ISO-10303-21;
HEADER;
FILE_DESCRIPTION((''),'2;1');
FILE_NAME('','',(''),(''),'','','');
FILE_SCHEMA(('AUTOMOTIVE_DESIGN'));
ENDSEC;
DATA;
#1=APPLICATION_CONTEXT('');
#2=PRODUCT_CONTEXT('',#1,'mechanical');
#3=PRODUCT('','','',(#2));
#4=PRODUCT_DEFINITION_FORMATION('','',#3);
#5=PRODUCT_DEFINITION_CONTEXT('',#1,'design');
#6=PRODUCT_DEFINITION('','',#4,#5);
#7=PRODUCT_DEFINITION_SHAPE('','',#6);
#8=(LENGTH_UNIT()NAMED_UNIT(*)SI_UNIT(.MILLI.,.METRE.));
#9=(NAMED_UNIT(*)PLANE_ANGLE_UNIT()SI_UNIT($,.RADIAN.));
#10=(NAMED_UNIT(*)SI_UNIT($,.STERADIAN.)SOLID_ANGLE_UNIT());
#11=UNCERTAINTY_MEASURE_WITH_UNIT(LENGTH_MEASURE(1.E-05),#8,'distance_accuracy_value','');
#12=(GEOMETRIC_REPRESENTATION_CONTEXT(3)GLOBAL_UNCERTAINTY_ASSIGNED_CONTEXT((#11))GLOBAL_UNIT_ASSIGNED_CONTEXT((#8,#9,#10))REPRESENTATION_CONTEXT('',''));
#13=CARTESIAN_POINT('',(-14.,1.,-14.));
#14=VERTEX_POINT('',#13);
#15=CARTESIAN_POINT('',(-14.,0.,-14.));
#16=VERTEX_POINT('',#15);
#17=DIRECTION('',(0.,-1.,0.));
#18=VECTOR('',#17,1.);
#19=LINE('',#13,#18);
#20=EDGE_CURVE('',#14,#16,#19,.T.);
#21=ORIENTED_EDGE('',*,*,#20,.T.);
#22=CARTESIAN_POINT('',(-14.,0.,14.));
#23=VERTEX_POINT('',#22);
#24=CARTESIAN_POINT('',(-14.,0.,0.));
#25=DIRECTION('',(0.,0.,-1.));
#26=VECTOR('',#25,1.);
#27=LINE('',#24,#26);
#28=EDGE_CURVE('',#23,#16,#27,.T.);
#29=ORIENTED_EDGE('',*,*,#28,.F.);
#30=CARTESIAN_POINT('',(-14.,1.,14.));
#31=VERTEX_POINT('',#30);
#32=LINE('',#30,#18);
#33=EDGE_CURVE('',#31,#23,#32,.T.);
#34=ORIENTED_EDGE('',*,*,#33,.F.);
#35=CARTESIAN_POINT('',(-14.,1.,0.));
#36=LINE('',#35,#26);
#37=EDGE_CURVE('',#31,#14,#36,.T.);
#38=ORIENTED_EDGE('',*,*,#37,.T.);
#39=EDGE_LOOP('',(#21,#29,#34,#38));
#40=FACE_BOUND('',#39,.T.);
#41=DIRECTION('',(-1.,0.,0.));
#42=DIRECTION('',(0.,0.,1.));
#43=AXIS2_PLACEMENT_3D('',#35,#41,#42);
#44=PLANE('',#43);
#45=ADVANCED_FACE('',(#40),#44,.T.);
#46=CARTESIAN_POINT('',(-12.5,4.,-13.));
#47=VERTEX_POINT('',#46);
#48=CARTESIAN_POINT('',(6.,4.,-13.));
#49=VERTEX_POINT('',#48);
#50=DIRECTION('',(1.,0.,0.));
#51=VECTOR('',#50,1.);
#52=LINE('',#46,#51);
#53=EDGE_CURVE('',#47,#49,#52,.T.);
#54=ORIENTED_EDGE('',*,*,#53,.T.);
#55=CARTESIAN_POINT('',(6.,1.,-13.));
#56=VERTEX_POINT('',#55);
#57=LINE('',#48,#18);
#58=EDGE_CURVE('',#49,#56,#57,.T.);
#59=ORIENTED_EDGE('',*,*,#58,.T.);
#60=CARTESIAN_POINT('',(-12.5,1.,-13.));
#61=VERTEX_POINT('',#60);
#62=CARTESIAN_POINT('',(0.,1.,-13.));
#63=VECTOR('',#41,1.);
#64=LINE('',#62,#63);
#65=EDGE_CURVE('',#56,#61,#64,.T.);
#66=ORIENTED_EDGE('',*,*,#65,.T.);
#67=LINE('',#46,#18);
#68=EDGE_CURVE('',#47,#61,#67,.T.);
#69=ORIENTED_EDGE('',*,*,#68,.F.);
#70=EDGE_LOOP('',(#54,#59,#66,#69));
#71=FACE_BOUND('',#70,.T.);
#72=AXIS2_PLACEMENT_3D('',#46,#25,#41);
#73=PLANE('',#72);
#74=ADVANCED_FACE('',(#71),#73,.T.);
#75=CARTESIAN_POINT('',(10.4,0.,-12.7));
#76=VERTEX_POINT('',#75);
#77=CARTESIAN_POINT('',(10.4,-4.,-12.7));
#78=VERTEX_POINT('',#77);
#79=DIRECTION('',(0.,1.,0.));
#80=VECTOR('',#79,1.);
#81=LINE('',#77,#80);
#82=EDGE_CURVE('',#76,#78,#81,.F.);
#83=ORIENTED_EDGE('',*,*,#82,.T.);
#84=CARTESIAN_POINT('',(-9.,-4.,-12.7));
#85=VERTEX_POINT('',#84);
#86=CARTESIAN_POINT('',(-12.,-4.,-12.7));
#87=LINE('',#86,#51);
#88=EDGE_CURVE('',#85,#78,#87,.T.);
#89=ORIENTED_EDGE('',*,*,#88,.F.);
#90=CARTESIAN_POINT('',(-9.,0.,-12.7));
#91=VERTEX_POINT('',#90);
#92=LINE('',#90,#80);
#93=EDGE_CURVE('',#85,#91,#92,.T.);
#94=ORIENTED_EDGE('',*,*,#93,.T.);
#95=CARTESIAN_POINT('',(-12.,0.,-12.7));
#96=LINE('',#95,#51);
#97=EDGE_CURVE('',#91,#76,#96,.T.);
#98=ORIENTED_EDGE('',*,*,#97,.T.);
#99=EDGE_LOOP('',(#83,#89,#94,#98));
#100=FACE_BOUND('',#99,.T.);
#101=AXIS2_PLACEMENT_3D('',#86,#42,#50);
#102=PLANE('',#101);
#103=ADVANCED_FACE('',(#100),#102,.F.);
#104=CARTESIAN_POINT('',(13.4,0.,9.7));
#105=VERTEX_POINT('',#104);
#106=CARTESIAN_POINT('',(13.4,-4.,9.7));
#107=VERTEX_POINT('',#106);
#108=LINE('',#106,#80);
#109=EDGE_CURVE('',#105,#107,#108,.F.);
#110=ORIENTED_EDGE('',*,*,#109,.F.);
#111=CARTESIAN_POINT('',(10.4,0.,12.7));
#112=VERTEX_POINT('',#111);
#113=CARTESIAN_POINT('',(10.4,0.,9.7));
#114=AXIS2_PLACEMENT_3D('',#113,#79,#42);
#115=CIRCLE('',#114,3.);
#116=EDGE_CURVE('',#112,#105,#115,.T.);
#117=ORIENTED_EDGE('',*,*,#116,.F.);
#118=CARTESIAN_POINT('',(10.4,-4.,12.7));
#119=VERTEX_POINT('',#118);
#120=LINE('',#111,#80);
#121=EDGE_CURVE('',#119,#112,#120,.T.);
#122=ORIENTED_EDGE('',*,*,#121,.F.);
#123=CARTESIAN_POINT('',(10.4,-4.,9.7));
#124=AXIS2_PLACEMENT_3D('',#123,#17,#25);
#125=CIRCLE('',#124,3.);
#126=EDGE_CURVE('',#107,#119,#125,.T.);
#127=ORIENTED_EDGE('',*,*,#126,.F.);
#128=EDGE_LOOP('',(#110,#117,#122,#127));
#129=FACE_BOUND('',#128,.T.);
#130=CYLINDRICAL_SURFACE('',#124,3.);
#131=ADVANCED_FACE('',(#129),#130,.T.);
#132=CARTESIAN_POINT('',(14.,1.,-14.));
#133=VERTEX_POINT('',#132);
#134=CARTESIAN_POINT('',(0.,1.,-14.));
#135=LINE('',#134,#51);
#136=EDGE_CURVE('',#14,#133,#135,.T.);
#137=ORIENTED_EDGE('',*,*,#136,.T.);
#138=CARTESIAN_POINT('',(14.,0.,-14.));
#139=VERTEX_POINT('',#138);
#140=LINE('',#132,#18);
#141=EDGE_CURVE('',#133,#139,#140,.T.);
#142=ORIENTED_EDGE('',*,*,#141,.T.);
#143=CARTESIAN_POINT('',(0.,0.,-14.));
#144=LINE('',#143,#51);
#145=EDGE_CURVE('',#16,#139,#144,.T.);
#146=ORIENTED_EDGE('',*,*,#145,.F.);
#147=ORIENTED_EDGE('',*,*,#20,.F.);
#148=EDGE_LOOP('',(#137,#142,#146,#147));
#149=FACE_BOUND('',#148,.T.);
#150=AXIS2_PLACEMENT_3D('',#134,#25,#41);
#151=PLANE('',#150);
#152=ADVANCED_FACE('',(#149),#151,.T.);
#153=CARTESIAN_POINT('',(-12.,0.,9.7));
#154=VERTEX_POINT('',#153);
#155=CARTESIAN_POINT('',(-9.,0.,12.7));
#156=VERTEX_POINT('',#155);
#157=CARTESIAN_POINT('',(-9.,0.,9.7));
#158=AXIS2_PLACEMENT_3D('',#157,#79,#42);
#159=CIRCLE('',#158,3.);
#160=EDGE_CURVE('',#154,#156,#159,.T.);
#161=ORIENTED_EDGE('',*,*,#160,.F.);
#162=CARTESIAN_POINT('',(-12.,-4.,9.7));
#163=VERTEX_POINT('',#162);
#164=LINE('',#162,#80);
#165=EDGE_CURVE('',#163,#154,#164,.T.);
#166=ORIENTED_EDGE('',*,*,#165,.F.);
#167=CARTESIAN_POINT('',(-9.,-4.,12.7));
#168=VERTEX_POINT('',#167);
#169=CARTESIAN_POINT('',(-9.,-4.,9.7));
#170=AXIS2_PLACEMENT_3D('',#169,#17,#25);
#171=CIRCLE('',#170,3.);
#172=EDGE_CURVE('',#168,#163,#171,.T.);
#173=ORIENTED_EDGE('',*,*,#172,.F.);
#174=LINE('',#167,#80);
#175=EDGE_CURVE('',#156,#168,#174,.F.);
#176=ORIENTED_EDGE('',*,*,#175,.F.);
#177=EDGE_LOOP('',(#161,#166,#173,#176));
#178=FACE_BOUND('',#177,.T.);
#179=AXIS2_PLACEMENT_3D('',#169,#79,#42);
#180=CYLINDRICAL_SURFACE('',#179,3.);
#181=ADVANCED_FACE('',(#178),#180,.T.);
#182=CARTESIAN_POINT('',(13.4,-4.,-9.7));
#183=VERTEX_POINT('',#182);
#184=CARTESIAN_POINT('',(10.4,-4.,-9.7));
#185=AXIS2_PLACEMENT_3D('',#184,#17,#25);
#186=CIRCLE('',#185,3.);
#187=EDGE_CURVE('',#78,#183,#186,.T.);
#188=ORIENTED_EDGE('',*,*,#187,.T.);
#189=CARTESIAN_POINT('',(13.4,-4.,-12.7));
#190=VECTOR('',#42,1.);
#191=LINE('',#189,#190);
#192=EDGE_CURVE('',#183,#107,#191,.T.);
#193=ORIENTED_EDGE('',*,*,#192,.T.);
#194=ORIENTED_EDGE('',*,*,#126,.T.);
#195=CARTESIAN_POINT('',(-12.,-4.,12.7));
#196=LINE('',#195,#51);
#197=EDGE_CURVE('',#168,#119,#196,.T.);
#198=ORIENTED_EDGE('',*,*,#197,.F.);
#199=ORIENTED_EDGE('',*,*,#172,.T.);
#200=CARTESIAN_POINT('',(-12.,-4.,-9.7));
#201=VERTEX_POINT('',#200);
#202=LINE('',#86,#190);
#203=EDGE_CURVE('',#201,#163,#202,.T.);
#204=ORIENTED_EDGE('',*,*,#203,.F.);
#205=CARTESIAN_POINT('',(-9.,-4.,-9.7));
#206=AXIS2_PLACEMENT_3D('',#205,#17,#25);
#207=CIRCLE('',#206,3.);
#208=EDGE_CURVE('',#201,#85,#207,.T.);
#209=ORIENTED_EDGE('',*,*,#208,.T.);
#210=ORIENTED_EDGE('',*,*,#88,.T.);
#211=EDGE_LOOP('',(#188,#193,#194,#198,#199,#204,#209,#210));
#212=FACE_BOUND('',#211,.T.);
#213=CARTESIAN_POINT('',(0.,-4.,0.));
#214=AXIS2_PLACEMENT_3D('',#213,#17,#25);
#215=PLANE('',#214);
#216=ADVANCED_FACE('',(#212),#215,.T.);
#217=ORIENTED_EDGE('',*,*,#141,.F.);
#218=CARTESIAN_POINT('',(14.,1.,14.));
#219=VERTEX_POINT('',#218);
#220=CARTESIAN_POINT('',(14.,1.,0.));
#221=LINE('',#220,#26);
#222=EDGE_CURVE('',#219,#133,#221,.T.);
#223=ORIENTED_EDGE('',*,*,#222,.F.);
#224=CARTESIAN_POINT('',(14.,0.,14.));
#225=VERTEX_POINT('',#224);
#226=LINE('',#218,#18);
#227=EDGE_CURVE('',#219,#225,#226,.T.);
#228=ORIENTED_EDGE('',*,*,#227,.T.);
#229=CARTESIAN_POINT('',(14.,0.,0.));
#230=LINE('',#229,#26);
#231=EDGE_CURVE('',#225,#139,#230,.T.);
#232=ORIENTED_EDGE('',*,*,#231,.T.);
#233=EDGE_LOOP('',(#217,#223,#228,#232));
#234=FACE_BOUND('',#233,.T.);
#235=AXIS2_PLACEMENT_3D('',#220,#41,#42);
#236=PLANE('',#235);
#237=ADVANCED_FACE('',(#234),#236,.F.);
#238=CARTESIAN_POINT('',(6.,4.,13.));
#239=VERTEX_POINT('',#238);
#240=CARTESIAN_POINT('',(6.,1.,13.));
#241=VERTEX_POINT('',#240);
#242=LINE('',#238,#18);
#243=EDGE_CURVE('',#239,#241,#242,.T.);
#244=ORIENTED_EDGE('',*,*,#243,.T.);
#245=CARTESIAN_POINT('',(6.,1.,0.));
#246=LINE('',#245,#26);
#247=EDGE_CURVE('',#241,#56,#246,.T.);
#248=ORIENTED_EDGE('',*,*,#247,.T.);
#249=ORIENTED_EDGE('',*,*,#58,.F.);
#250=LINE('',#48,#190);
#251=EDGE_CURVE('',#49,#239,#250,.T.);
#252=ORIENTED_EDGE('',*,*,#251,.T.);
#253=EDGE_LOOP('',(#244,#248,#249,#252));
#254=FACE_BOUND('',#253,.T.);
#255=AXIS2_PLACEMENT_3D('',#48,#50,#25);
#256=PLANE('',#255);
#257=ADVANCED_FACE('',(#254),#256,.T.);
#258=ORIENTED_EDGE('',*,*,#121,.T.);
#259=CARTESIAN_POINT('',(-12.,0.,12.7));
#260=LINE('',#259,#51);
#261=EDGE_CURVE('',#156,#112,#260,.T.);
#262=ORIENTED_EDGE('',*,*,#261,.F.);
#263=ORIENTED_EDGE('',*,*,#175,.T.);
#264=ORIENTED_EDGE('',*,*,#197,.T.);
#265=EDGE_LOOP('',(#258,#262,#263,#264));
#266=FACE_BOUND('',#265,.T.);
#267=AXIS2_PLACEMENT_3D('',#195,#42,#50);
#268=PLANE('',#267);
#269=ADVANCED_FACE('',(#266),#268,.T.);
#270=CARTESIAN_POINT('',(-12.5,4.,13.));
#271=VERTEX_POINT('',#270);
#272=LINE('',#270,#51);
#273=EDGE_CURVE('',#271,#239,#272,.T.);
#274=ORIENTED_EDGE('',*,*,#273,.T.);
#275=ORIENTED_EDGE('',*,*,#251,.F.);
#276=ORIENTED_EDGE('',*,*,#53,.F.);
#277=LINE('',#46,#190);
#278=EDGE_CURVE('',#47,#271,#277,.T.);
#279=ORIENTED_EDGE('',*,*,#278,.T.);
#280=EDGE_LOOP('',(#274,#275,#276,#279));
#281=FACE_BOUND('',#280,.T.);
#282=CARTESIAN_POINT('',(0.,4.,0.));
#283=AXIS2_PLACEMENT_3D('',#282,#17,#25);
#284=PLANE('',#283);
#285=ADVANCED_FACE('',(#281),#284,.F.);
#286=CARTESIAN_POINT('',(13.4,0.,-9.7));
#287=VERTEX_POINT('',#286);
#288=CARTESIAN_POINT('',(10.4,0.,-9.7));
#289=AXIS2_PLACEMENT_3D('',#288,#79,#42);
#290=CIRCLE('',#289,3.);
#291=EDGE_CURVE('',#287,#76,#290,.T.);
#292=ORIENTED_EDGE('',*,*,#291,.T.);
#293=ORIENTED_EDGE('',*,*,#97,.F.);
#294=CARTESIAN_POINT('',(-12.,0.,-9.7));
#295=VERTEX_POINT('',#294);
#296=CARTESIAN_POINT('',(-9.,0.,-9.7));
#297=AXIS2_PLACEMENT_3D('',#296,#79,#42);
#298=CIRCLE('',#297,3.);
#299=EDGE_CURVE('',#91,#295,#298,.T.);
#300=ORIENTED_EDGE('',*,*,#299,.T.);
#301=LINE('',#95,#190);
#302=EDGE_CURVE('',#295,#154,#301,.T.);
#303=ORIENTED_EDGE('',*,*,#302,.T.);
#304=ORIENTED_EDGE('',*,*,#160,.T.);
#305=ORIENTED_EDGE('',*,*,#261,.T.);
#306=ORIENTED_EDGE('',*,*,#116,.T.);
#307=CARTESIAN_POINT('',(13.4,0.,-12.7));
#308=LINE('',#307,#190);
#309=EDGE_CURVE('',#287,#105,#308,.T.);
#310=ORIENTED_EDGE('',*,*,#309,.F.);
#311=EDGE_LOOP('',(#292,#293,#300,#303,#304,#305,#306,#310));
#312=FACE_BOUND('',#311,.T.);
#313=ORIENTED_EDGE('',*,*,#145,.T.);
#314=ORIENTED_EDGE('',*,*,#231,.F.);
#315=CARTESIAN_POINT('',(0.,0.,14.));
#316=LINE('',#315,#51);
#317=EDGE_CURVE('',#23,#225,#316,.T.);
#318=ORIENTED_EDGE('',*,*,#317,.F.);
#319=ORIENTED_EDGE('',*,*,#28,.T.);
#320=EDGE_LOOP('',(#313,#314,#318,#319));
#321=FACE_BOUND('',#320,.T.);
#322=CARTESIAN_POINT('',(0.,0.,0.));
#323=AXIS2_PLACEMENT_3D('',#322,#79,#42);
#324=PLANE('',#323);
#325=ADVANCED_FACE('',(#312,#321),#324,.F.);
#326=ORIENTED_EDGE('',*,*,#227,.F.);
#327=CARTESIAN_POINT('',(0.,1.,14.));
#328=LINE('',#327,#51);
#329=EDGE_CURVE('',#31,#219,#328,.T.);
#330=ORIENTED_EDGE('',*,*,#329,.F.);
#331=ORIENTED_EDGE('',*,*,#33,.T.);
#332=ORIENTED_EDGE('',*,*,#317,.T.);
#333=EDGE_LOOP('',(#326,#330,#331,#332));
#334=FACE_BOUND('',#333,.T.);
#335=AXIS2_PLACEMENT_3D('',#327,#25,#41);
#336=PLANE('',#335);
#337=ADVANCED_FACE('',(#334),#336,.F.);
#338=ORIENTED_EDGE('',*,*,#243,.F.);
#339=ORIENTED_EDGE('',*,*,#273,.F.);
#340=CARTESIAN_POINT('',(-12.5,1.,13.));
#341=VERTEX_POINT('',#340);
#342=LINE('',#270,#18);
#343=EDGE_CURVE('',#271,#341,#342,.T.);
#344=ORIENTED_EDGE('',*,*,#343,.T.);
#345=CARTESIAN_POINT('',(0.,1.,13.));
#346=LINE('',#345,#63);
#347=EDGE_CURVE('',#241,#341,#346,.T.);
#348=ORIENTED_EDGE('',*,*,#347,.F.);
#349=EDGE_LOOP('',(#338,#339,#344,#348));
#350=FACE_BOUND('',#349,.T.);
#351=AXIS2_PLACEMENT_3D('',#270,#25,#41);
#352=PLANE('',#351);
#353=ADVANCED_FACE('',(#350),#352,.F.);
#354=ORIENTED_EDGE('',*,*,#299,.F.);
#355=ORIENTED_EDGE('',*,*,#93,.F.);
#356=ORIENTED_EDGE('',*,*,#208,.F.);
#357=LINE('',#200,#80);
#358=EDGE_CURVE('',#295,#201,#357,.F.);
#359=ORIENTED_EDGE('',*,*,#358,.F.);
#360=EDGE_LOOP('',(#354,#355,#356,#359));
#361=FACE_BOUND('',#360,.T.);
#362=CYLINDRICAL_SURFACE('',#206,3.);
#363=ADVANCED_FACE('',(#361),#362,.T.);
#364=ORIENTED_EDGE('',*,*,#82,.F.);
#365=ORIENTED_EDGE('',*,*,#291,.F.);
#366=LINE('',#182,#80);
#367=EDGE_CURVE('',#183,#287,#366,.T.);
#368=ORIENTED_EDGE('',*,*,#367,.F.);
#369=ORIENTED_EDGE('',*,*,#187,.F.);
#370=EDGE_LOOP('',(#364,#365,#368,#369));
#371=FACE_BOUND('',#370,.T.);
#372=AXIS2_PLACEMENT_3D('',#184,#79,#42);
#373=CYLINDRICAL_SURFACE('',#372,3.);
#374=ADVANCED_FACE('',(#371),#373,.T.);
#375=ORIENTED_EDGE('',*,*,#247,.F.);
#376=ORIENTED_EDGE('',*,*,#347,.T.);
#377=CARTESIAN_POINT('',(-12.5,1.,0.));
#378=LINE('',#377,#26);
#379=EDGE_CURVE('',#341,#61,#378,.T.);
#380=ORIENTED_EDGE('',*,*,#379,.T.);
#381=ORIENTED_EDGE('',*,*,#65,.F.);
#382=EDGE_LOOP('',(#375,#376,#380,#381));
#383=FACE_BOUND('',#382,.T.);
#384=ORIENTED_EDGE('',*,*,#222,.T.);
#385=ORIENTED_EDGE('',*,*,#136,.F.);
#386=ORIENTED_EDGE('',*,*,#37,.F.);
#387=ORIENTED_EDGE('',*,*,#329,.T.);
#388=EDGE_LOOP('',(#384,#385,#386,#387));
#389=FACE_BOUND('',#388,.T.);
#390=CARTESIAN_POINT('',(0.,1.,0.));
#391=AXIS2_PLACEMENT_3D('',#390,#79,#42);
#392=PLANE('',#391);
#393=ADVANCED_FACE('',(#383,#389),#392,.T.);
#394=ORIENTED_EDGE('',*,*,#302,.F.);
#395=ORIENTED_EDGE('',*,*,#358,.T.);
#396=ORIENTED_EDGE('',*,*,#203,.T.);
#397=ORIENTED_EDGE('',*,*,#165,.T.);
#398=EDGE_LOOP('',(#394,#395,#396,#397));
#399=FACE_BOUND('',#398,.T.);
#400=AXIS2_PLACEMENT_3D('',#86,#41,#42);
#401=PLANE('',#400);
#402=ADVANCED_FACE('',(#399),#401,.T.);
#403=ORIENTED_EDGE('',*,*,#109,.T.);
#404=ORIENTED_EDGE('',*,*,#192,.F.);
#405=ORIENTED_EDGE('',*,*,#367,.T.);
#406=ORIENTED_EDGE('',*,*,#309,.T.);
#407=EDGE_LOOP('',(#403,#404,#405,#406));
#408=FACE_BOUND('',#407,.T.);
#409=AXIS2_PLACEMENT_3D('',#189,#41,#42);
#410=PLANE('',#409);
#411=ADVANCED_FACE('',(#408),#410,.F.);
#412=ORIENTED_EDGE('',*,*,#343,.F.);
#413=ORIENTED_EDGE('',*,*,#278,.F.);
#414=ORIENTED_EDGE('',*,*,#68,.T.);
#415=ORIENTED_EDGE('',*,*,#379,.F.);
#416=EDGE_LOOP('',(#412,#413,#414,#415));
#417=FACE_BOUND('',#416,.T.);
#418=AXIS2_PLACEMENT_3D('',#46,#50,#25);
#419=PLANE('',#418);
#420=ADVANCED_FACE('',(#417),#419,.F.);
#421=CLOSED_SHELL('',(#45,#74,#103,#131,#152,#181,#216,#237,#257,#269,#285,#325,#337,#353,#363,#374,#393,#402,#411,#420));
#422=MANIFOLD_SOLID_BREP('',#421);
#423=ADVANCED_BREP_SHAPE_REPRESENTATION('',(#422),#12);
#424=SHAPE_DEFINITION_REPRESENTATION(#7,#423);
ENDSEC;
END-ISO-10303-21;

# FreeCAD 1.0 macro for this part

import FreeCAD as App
import Part
import Sketcher


def edges_at(feature, points):
    """Names of the edges that pass closest to the given points."""
    edges = feature.Shape.Edges
    near = lambda p: min(range(len(edges)), key=lambda i: edges[i].distToShape(Part.Vertex(*p))[0])
    return sorted({f"Edge{near(p) + 1}" for p in points})


def add_polygon(sketch, points):
    """Adds a closed chain of lines whose ends are joined by coincident constraints."""
    first, n = sketch.GeometryCount, len(points)
    for a, b in zip(points, points[1:] + points[:1]):
        sketch.addGeometry(Part.LineSegment(App.Vector(*a, 0), App.Vector(*b, 0)), False)
    for i in range(n):
        sketch.addConstraint(Sketcher.Constraint("Coincident", first + i, 2, first + (i + 1) % n, 1))

doc = App.newDocument("Part")
body = doc.addObject("PartDesign::Body", "Body")

sketch1 = body.newObject("Sketcher::SketchObject", "Sketch")
sketch1.AttachmentSupport = (doc.getObject("XZ_Plane"), [""])
sketch1.MapMode = "FlatFace"
add_polygon(sketch1, [(-14, -14), (-14, 14), (14, 14), (14, -14)])
sketch1.addConstraint([
    Sketcher.Constraint("Vertical", 0),
    Sketcher.Constraint("Horizontal", 1),
    Sketcher.Constraint("Vertical", 2),
    Sketcher.Constraint("Horizontal", 3),
    Sketcher.Constraint("Symmetric", 0, 2, 2, 2, -1, 1),
    Sketcher.Constraint("Equal", 3, 0),
    Sketcher.Constraint("DistanceX", 1, 1, 1, 2, 28.0),
])
pad1 = body.newObject("PartDesign::Pad", "Pad")
pad1.Profile = sketch1
pad1.Length = 1
pad1.Reversed = True

sketch2 = body.newObject("Sketcher::SketchObject", "Sketch001")
sketch2.AttachmentSupport = (doc.getObject("XZ_Plane"), [""])
sketch2.MapMode = "FlatFace"
add_polygon(sketch2, [(-12, -13), (-12, 13), (13, 13), (13, -13)])
sketch2.addConstraint([
    Sketcher.Constraint("Vertical", 0),
    Sketcher.Constraint("Horizontal", 1),
    Sketcher.Constraint("Vertical", 2),
    Sketcher.Constraint("Horizontal", 3),
    Sketcher.Constraint("Equal", 3, 0),
    Sketcher.Constraint("DistanceX", 1, 1, 1, 2, 25.4),
    Sketcher.Constraint("DistanceX", 0, 2, -1, 1, 12.0),
    Sketcher.Constraint("DistanceY", -1, 1, 0, 2, 12.7),
])
pad2 = body.newObject("PartDesign::Pad", "Pad001")
pad2.Profile = sketch2
pad2.Length = 4

sketch3 = body.newObject("Sketcher::SketchObject", "Sketch002")
sketch3.AttachmentSupport = (doc.getObject("XZ_Plane"), [""])
sketch3.MapMode = "FlatFace"
add_polygon(sketch3, [(-12, -13), (-12, 13), (6, 13), (6, -13)])
sketch3.addConstraint([
    Sketcher.Constraint("Vertical", 0),
    Sketcher.Constraint("Horizontal", 1),
    Sketcher.Constraint("Vertical", 2),
    Sketcher.Constraint("Horizontal", 3),
    Sketcher.Constraint("DistanceY", 0, 1, 0, 2, 26.0),
    Sketcher.Constraint("DistanceX", 1, 1, 1, 2, 18.5),
    Sketcher.Constraint("DistanceY", -1, 1, 0, 2, 13.0),
    Sketcher.Constraint("DistanceX", -1, 1, 1, 2, 6.0),
])
pad3 = body.newObject("PartDesign::Pad", "Pad002")
pad3.Profile = sketch3
pad3.Length = 4
pad3.Reversed = True
doc.recompute()

fillet = body.newObject("PartDesign::Fillet", "Fillet")
fillet.Base = (pad3, edges_at(pad3, [
    (-12, -2, -12.7),
    (13.4, -2, -12.7),
    (13.4, -2, 12.7),
    (-12, -2, 12.7),
]))
fillet.Radius = 3

doc.recompute()
